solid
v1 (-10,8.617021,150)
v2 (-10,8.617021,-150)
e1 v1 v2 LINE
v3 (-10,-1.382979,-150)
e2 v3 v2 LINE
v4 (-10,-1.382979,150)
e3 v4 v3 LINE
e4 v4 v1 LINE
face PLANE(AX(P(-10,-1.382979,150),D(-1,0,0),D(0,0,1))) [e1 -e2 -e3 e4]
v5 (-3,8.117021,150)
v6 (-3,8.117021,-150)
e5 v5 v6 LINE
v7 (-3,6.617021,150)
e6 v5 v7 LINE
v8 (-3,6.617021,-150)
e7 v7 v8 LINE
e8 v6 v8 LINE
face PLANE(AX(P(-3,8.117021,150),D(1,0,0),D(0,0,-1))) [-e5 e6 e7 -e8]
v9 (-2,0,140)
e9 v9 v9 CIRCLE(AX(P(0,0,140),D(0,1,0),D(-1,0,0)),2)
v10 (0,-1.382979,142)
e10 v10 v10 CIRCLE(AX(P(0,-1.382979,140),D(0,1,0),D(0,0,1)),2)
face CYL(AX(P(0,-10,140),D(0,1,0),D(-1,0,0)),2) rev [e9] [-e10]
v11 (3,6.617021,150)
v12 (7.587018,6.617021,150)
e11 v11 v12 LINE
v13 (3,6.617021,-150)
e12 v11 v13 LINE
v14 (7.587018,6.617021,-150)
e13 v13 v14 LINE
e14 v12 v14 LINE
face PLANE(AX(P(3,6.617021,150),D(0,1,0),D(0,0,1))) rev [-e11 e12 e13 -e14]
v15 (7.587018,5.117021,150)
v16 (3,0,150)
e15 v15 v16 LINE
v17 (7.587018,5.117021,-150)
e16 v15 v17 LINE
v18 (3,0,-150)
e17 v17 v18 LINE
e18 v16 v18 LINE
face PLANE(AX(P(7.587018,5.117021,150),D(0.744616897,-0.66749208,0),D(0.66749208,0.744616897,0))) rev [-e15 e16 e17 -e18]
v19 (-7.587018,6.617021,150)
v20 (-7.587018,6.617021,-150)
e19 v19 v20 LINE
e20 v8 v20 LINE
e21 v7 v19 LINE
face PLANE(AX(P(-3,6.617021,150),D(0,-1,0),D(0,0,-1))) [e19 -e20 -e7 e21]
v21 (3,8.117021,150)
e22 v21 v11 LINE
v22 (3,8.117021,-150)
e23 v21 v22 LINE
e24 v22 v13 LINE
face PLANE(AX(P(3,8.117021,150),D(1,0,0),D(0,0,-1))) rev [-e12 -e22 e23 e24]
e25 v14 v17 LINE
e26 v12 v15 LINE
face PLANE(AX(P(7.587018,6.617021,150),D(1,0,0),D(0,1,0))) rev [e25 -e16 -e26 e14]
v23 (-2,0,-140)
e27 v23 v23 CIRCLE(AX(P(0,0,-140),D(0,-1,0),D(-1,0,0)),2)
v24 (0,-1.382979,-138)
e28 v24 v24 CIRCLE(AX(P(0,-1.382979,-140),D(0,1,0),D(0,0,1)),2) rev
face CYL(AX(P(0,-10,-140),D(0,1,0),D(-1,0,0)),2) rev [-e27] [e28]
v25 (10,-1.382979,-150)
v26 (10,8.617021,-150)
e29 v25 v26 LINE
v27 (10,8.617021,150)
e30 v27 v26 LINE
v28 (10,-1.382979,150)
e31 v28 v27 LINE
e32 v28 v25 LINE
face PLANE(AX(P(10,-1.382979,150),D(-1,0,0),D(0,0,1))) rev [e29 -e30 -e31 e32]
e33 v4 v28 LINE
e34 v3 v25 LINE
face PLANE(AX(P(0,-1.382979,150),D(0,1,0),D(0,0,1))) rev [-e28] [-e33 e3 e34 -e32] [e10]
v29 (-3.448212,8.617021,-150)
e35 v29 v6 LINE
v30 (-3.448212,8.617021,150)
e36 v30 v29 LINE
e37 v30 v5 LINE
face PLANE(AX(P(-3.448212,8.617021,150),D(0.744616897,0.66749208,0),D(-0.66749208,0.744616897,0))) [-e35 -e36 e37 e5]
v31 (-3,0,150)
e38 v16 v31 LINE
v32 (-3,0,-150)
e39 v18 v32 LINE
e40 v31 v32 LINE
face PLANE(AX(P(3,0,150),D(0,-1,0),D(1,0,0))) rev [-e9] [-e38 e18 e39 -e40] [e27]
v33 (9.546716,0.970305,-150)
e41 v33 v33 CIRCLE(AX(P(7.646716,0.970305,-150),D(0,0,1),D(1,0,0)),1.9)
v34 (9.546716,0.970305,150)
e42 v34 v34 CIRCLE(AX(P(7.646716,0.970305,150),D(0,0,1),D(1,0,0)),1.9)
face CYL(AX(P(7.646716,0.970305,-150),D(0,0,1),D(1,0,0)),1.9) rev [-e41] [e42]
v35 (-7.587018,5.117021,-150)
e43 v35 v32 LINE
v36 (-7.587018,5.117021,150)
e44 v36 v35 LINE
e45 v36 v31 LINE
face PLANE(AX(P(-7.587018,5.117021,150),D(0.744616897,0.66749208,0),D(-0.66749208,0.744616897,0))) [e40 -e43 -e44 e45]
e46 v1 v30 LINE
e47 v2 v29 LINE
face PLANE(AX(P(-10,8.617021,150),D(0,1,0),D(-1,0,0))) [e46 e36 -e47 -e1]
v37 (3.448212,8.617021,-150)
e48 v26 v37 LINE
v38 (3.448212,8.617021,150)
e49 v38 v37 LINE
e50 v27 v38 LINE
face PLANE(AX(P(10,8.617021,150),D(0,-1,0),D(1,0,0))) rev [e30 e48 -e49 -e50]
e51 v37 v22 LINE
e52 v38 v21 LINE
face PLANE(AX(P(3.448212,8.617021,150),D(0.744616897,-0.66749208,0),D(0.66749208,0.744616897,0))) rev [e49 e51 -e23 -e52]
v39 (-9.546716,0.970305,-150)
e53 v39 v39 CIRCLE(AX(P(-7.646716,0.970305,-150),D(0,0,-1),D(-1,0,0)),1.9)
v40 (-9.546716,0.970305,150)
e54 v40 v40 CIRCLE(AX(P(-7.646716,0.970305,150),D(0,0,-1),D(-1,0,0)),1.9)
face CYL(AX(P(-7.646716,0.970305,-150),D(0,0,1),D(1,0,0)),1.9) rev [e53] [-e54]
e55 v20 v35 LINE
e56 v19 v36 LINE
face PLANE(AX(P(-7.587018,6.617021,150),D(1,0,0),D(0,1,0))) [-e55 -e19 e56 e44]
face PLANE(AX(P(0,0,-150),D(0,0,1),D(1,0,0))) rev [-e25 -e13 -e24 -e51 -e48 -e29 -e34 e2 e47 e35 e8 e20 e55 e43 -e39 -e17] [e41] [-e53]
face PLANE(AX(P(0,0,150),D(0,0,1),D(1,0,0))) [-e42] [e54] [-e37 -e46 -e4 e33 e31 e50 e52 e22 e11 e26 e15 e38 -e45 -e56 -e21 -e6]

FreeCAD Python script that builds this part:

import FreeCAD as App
import Part
import Sketcher


def add_polygon(sketch, points):
    """Adds a closed chain of lines whose ends are joined by coincident constraints."""
    first, n = sketch.GeometryCount, len(points)
    for a, b in zip(points, points[1:] + points[:1]):
        sketch.addGeometry(Part.LineSegment(App.Vector(*a, 0), App.Vector(*b, 0)), False)
    for i in range(n):
        sketch.addConstraint(Sketcher.Constraint("Coincident", first + i, 2, first + (i + 1) % n, 1))

doc = App.newDocument("Part")
params = doc.addObject("Spreadsheet::Sheet", "Params")
for row, (alias, value) in enumerate([
    ("sketch1_width", "10 mm"),
    ("sketch1_width2", "3 mm"),
    ("sketch1_height", "1.5 mm"),
    ("pad1_length", "300 mm"),
    ("sketch2_diameter", "3.8 mm"),
    ("sketch3_diameter", "4 mm"),
    ("pocket2_length", "10 mm"),
], start=1):
    params.set(f"A{row}", alias)
    params.set(f"B{row}", "=" + value)
    params.setAlias(f"B{row}", alias)

body = doc.addObject("PartDesign::Body", "Body")

# Sketch on XY plane
sketch1 = body.newObject("Sketcher::SketchObject", "Sketch")
sketch1.AttachmentSupport = (doc.getObject("XY_Plane"), [""])
sketch1.MapMode = "FlatFace"
add_polygon(sketch1, [(0, 0), (0, -1.382979), (10, -1.382979), (10, 8.617021), (3.448212, 8.617021), (3, 8.117021), (3, 6.617021), (7.587018, 6.617021), (7.587018, 5.117021), (3, 0)])  # lines 0-9
sketch1.addConstraint(Sketcher.Constraint("Vertical", 0))
sketch1.addConstraint(Sketcher.Constraint("Horizontal", 1))
sketch1.addConstraint(Sketcher.Constraint("Vertical", 2))
sketch1.addConstraint(Sketcher.Constraint("Horizontal", 3))
sketch1.addConstraint(Sketcher.Constraint("Vertical", 5))
sketch1.addConstraint(Sketcher.Constraint("Horizontal", 6))
sketch1.addConstraint(Sketcher.Constraint("Vertical", 7))
sketch1.addConstraint(Sketcher.Constraint("Horizontal", 9))
sketch1.addConstraint(Sketcher.Constraint("Coincident", 9, 2, -1, 1))
sketch1.addConstraint(Sketcher.Constraint("Parallel", 4, 8))
sketch1.addConstraint(Sketcher.Constraint("Vertical", 5, 2, 8, 2))
sketch1.addConstraint(Sketcher.Constraint("Equal", 1, 2))
sketch1.addConstraint(Sketcher.Constraint("Equal", 5, 7))
sketch1.addConstraint(Sketcher.Constraint("DistanceX", 1, 1, 1, 2, 10.0))
sketch1.addConstraint(Sketcher.Constraint("DistanceX", 9, 2, 9, 1, 3.0))
sketch1.addConstraint(Sketcher.Constraint("DistanceY", 5, 2, 5, 1, 1.5))
sketch1.addConstraint(Sketcher.Constraint("DistanceY", 5, 2, 3, 2, 2.0))
sketch1.addConstraint(Sketcher.Constraint("DistanceX", 3, 2, 3, 1, 6.551788))
sketch1.addConstraint(Sketcher.Constraint("DistanceX", 6, 1, 6, 2, 4.587018))
sketch1.setExpression("Constraints[23]", "Params.sketch1_width")
sketch1.setExpression("Constraints[24]", "Params.sketch1_width2")
sketch1.setExpression("Constraints[25]", "Params.sketch1_height")
pad1 = body.newObject("PartDesign::Pad", "Pad")
pad1.Profile = sketch1
pad1.setExpression("Length", "Params.pad1_length")
pad1.Midplane = True
doc.recompute()

mirrored = body.newObject("PartDesign::Mirrored", "Mirrored")
mirrored.Originals = [pad1]
mirrored.MirrorPlane = (doc.getObject("YZ_Plane"), [""])
body.Tip = mirrored

# Sketch on XY plane
sketch2 = body.newObject("Sketcher::SketchObject", "Sketch001")
sketch2.AttachmentSupport = (doc.getObject("XY_Plane"), [""])
sketch2.MapMode = "FlatFace"
sketch2.AttachmentOffset = App.Placement(App.Vector(0, 0, 150), App.Rotation())
sketch2.addGeometry(Part.Circle(App.Vector(7.646716, 0.970305, 0), App.Vector(0, 0, 1), 1.9), False)
sketch2.addConstraint(Sketcher.Constraint("Diameter", 0, 3.8))
sketch2.addConstraint(Sketcher.Constraint("DistanceX", -1, 1, 0, 3, 7.646716))
sketch2.addConstraint(Sketcher.Constraint("DistanceY", -1, 1, 0, 3, 0.970305))
sketch2.setExpression("Constraints[0]", "Params.sketch2_diameter")
pocket1 = body.newObject("PartDesign::Pocket", "Pocket")
pocket1.Profile = sketch2
pocket1.Type = "ThroughAll"
doc.recompute()

mirrored2 = body.newObject("PartDesign::Mirrored", "Mirrored001")
mirrored2.Originals = [pocket1]
mirrored2.MirrorPlane = (doc.getObject("YZ_Plane"), [""])
body.Tip = mirrored2

# Sketch on XZ plane
sketch3 = body.newObject("Sketcher::SketchObject", "Sketch002")
sketch3.AttachmentSupport = (doc.getObject("XZ_Plane"), [""])
sketch3.MapMode = "FlatFace"
sketch3.addGeometry(Part.Circle(App.Vector(0, 140, 0), App.Vector(0, 0, 1), 2), False)
sketch3.addConstraint(Sketcher.Constraint("PointOnObject", 0, 3, -2))
sketch3.addConstraint(Sketcher.Constraint("Diameter", 0, 4.0))
sketch3.addConstraint(Sketcher.Constraint("DistanceY", -1, 1, 0, 3, 140.0))
sketch3.setExpression("Constraints[1]", "Params.sketch3_diameter")
pocket2 = body.newObject("PartDesign::Pocket", "Pocket001")
pocket2.Profile = sketch3
pocket2.setExpression("Length", "Params.pocket2_length")
pocket2.Reversed = True
doc.recompute()

mirrored3 = body.newObject("PartDesign::Mirrored", "Mirrored002")
mirrored3.Originals = [pocket2]
mirrored3.MirrorPlane = (doc.getObject("XY_Plane"), [""])
body.Tip = mirrored3

doc.recompute()
